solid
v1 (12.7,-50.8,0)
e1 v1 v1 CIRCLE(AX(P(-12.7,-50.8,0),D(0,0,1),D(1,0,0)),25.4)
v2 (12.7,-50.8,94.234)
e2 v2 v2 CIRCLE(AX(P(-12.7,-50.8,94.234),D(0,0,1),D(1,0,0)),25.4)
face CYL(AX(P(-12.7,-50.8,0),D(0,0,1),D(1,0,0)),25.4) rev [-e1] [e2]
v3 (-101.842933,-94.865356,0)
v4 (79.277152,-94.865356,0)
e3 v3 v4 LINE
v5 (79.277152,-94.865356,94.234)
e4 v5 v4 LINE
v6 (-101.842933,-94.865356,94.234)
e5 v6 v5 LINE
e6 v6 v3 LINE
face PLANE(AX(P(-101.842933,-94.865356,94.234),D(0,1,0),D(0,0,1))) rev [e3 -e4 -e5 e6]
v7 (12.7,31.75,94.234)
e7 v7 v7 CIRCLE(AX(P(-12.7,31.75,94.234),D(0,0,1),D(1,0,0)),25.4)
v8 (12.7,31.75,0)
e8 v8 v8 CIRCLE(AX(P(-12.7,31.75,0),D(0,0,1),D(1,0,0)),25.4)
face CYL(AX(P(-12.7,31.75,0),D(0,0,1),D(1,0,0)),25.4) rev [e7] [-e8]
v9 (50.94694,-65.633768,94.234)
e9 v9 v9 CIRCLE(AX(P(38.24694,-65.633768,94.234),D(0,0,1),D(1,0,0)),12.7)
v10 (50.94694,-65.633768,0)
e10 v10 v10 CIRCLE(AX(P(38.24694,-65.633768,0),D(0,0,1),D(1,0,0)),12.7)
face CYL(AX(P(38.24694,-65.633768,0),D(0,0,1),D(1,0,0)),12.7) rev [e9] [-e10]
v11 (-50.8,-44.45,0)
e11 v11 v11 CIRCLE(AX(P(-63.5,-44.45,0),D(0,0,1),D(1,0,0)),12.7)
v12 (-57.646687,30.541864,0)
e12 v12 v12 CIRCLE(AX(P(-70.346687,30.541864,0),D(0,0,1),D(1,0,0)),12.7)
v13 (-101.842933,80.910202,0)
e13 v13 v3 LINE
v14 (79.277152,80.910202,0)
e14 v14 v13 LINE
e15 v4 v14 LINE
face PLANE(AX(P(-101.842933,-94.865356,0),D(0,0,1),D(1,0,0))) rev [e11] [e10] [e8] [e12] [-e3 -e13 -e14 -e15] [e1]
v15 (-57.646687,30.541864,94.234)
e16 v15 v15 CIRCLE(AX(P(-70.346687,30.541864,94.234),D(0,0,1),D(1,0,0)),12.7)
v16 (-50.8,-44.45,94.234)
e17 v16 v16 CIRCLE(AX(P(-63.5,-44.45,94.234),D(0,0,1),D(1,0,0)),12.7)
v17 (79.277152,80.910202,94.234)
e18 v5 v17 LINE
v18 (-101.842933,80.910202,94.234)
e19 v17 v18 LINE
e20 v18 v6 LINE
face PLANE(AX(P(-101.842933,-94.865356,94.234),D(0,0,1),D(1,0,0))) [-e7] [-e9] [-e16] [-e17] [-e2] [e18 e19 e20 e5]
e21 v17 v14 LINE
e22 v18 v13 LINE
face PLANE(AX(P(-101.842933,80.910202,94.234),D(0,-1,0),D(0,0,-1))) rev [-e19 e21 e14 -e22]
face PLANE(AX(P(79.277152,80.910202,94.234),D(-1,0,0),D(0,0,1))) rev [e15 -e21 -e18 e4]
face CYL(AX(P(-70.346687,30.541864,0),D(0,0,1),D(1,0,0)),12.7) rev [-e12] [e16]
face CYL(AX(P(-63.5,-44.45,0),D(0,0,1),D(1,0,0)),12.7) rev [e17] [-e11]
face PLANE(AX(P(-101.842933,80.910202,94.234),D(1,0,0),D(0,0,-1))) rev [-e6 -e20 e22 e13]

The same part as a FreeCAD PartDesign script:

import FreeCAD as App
import Part
import Sketcher
Q = App.Units.Quantity


def add_polygon(sketch, points):
    """Adds a closed chain of lines whose ends are joined by coincident constraints."""
    first, n = sketch.GeometryCount, len(points)
    for a, b in zip(points, points[1:] + points[:1]):
        sketch.addGeometry(Part.LineSegment(App.Vector(*a, 0), App.Vector(*b, 0)), False)
    for i in range(n):
        sketch.addConstraint(Sketcher.Constraint("Coincident", first + i, 2, first + (i + 1) % n, 1))

doc = App.newDocument("Part")
body = doc.addObject("PartDesign::Body", "Body")

sketch1 = body.newObject("Sketcher::SketchObject", "Sketch")
sketch1.AttachmentSupport = (doc.getObject("XY_Plane"), [""])
sketch1.MapMode = "FlatFace"
add_polygon(sketch1, [(-102, 81), (-102, -95), (79, -95), (79, 81)])
sketch1.addConstraint([
    Sketcher.Constraint("Vertical", 0),
    Sketcher.Constraint("Horizontal", 1),
    Sketcher.Constraint("Vertical", 2),
    Sketcher.Constraint("Horizontal", 3),
    Sketcher.Constraint("DistanceY", -1, 1, 2, 2, Q("80.910202 mm")),
    Sketcher.Constraint("DistanceX", 1, 1, 1, 2, Q("181.120085 mm")),
    Sketcher.Constraint("DistanceY", 0, 2, 0, 1, Q("175.775558 mm")),
    Sketcher.Constraint("DistanceX", -1, 1, 1, 2, Q("79.277152 mm")),
])
pad1 = body.newObject("PartDesign::Pad", "Pad")
pad1.Profile = sketch1
pad1.Length = Q("3.71 in")

sketch2 = body.newObject("Sketcher::SketchObject", "Sketch001")
sketch2.AttachmentSupport = (doc.getObject("XY_Plane"), [""])
sketch2.MapMode = "FlatFace"
sketch2.AttachmentOffset = App.Placement(App.Vector(0, 0, 3.71 * 25.4), App.Rotation())
sketch2.addGeometry([
    Part.Circle(App.Vector(-70, 31, 0), App.Vector(0, 0, 1), 13),
    Part.Circle(App.Vector(38, -66, 0), App.Vector(0, 0, 1), 13),
    Part.Circle(App.Vector(-64, -44, 0), App.Vector(0, 0, 1), 13),
    Part.Circle(App.Vector(-13, 32, 0), App.Vector(0, 0, 1), 25),
    Part.Circle(App.Vector(-13, -51, 0), App.Vector(0, 0, 1), 25),
], False)
sketch2.addConstraint([
    Sketcher.Constraint("Equal", 0, 1),
    Sketcher.Constraint("Equal", 1, 2),
    Sketcher.Constraint("Equal", 3, 4),
    Sketcher.Constraint("Vertical", 3, 3, 4, 3),
    Sketcher.Constraint("Diameter", 0, Q("1 in")),
    Sketcher.Constraint("Diameter", 3, Q("2 in")),
    Sketcher.Constraint("DistanceY", 4, 3, -1, 1, Q("2 in")),
    Sketcher.Constraint("DistanceX", 2, 3, 3, 3, Q("2 in")),
    Sketcher.Constraint("DistanceY", 2, 3, 3, 3, Q("3 in")),
    Sketcher.Constraint("DistanceX", 2, 3, -1, 1, Q("2.5 in")),
    Sketcher.Constraint("DistanceY", 2, 3, -1, 1, Q("1.75 in")),
    Sketcher.Constraint("DistanceX", -1, 1, 1, 3, Q("38.24694 mm")),
    Sketcher.Constraint("DistanceY", 1, 3, 0, 3, Q("96.175632 mm")),
    Sketcher.Constraint("DistanceX", 0, 3, -1, 1, Q("70.346687 mm")),
    Sketcher.Constraint("DistanceY", -1, 1, 0, 3, Q("30.541864 mm")),
])
pocket1 = body.newObject("PartDesign::Pocket", "Pocket")
pocket1.Profile = sketch2
pocket1.Type = "ThroughAll"

doc.recompute()
